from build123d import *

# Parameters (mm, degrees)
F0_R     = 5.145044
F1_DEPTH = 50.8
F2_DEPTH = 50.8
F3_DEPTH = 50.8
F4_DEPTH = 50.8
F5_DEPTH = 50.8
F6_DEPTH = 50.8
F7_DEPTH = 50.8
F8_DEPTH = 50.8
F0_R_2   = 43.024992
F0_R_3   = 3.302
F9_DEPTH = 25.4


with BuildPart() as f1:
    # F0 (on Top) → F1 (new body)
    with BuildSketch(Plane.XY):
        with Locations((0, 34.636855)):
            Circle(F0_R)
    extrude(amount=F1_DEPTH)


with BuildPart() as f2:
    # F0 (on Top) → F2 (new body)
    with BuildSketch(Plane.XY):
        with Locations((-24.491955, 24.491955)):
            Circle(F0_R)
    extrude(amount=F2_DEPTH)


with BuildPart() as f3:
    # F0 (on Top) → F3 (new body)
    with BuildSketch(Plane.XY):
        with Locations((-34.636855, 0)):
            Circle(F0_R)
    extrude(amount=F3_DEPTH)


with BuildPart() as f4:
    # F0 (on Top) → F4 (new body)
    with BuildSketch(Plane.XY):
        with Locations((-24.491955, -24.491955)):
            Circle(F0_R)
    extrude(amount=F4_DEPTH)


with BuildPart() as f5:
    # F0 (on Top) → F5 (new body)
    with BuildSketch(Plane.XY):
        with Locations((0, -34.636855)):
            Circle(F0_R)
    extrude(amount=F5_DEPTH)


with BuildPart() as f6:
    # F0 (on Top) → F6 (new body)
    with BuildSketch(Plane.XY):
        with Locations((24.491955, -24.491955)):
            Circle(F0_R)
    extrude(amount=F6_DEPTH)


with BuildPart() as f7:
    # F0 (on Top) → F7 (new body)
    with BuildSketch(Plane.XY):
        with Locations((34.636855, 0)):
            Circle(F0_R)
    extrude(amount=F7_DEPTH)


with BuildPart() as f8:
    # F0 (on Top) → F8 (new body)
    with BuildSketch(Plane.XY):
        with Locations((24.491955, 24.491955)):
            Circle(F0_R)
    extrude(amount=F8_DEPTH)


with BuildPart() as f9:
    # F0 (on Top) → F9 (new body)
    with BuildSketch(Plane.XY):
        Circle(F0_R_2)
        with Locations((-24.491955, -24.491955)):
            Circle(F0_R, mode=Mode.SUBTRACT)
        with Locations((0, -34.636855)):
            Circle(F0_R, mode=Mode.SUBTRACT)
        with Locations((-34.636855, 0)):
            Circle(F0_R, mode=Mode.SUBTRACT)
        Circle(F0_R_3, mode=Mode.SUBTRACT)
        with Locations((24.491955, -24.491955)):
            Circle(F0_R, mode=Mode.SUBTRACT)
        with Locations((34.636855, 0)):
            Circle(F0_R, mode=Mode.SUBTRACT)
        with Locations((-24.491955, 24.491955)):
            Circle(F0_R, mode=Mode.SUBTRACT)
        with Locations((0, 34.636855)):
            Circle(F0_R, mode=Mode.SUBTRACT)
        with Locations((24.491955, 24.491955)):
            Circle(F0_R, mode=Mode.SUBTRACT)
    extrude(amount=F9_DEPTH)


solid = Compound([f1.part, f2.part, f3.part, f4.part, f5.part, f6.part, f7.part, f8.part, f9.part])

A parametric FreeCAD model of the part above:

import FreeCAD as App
import Part
import Sketcher

V = App.Vector
Q = App.Units.Quantity

doc = App.newDocument("Part")
body = doc.addObject("PartDesign::Body", "Body")

# Sketch on XY plane
sketch1 = body.newObject("Sketcher::SketchObject", "Sketch")
sketch1.AttachmentSupport = (doc.getObject("XY_Plane"), [""])
sketch1.MapMode = "FlatFace"
sketch1.addGeometry(Part.Circle(V(0, 34.636855, 0), V(0, 0, 1), 5.145044), False)
sketch1.addConstraint(Sketcher.Constraint("PointOnObject", 0, 3, -2))
sketch1.addConstraint(Sketcher.Constraint("Diameter", 0, 10.290088))
sketch1.addConstraint(Sketcher.Constraint("DistanceY", -1, 1, 0, 3, 34.636855))
pad1 = body.newObject("PartDesign::Pad", "Pad")
pad1.Profile = sketch1
pad1.Length = Q("2 in")
body2 = doc.addObject("PartDesign::Body", "Body001")

# Sketch on XY plane
sketch2 = body2.newObject("Sketcher::SketchObject", "Sketch001")
sketch2.AttachmentSupport = (doc.getObject("XY_Plane001"), [""])
sketch2.MapMode = "FlatFace"
sketch2.addGeometry(Part.Circle(V(-24.491955, 24.491955, 0), V(0, 0, 1), 5.145044), False)
sketch2.addConstraint(Sketcher.Constraint("Diameter", 0, 10.290088))
sketch2.addConstraint(Sketcher.Constraint("DistanceX", 0, 3, -1, 1, 24.491955))
sketch2.addConstraint(Sketcher.Constraint("DistanceY", -1, 1, 0, 3, 24.491955))
pad2 = body2.newObject("PartDesign::Pad", "Pad001")
pad2.Profile = sketch2
pad2.Length = Q("2 in")
body3 = doc.addObject("PartDesign::Body", "Body002")

# Sketch on XY plane
sketch3 = body3.newObject("Sketcher::SketchObject", "Sketch002")
sketch3.AttachmentSupport = (doc.getObject("XY_Plane002"), [""])
sketch3.MapMode = "FlatFace"
sketch3.addGeometry(Part.Circle(V(-34.636855, 0, 0), V(0, 0, 1), 5.145044), False)
sketch3.addConstraint(Sketcher.Constraint("PointOnObject", 0, 3, -1))
sketch3.addConstraint(Sketcher.Constraint("Diameter", 0, 10.290088))
sketch3.addConstraint(Sketcher.Constraint("DistanceX", 0, 3, -1, 1, 34.636855))
pad3 = body3.newObject("PartDesign::Pad", "Pad002")
pad3.Profile = sketch3
pad3.Length = Q("2 in")
body4 = doc.addObject("PartDesign::Body", "Body003")

# Sketch on XY plane
sketch4 = body4.newObject("Sketcher::SketchObject", "Sketch003")
sketch4.AttachmentSupport = (doc.getObject("XY_Plane003"), [""])
sketch4.MapMode = "FlatFace"
sketch4.addGeometry(Part.Circle(V(-24.491955, -24.491955, 0), V(0, 0, 1), 5.145044), False)
sketch4.addConstraint(Sketcher.Constraint("Diameter", 0, 10.290088))
sketch4.addConstraint(Sketcher.Constraint("DistanceX", 0, 3, -1, 1, 24.491955))
sketch4.addConstraint(Sketcher.Constraint("DistanceY", 0, 3, -1, 1, 24.491955))
pad4 = body4.newObject("PartDesign::Pad", "Pad003")
pad4.Profile = sketch4
pad4.Length = Q("2 in")
body5 = doc.addObject("PartDesign::Body", "Body004")

# Sketch on XY plane
sketch5 = body5.newObject("Sketcher::SketchObject", "Sketch004")
sketch5.AttachmentSupport = (doc.getObject("XY_Plane004"), [""])
sketch5.MapMode = "FlatFace"
sketch5.addGeometry(Part.Circle(V(0, -34.636855, 0), V(0, 0, 1), 5.145044), False)
sketch5.addConstraint(Sketcher.Constraint("PointOnObject", 0, 3, -2))
sketch5.addConstraint(Sketcher.Constraint("Diameter", 0, 10.290088))
sketch5.addConstraint(Sketcher.Constraint("DistanceY", 0, 3, -1, 1, 34.636855))
pad5 = body5.newObject("PartDesign::Pad", "Pad004")
pad5.Profile = sketch5
pad5.Length = Q("2 in")
body6 = doc.addObject("PartDesign::Body", "Body005")

# Sketch on XY plane
sketch6 = body6.newObject("Sketcher::SketchObject", "Sketch005")
sketch6.AttachmentSupport = (doc.getObject("XY_Plane005"), [""])
sketch6.MapMode = "FlatFace"
sketch6.addGeometry(Part.Circle(V(24.491955, -24.491955, 0), V(0, 0, 1), 5.145044), False)
sketch6.addConstraint(Sketcher.Constraint("Diameter", 0, 10.290088))
sketch6.addConstraint(Sketcher.Constraint("DistanceX", -1, 1, 0, 3, 24.491955))
sketch6.addConstraint(Sketcher.Constraint("DistanceY", 0, 3, -1, 1, 24.491955))
pad6 = body6.newObject("PartDesign::Pad", "Pad005")
pad6.Profile = sketch6
pad6.Length = Q("2 in")
body7 = doc.addObject("PartDesign::Body", "Body006")

# Sketch on XY plane
sketch7 = body7.newObject("Sketcher::SketchObject", "Sketch006")
sketch7.AttachmentSupport = (doc.getObject("XY_Plane006"), [""])
sketch7.MapMode = "FlatFace"
sketch7.addGeometry(Part.Circle(V(34.636855, 0, 0), V(0, 0, 1), 5.145044), False)
sketch7.addConstraint(Sketcher.Constraint("PointOnObject", 0, 3, -1))
sketch7.addConstraint(Sketcher.Constraint("Diameter", 0, 10.290088))
sketch7.addConstraint(Sketcher.Constraint("DistanceX", -1, 1, 0, 3, 34.636855))
pad7 = body7.newObject("PartDesign::Pad", "Pad006")
pad7.Profile = sketch7
pad7.Length = Q("2 in")
body8 = doc.addObject("PartDesign::Body", "Body007")

# Sketch on XY plane
sketch8 = body8.newObject("Sketcher::SketchObject", "Sketch007")
sketch8.AttachmentSupport = (doc.getObject("XY_Plane007"), [""])
sketch8.MapMode = "FlatFace"
sketch8.addGeometry(Part.Circle(V(24.491955, 24.491955, 0), V(0, 0, 1), 5.145044), False)
sketch8.addConstraint(Sketcher.Constraint("Diameter", 0, 10.290088))
sketch8.addConstraint(Sketcher.Constraint("DistanceX", -1, 1, 0, 3, 24.491955))
sketch8.addConstraint(Sketcher.Constraint("DistanceY", -1, 1, 0, 3, 24.491955))
pad8 = body8.newObject("PartDesign::Pad", "Pad007")
pad8.Profile = sketch8
pad8.Length = Q("2 in")
body9 = doc.addObject("PartDesign::Body", "Body008")

# Sketch on XY plane
sketch9 = body9.newObject("Sketcher::SketchObject", "Sketch008")
sketch9.AttachmentSupport = (doc.getObject("XY_Plane008"), [""])
sketch9.MapMode = "FlatFace"
sketch9.addGeometry(Part.Circle(V(0, 0, 0), V(0, 0, 1), 43.024992), False)
sketch9.addGeometry(Part.Circle(V(-24.491955, -24.491955, 0), V(0, 0, 1), 5.145044), False)
sketch9.addGeometry(Part.Circle(V(0, -34.636855, 0), V(0, 0, 1), 5.145044), False)
sketch9.addGeometry(Part.Circle(V(24.491955, -24.491955, 0), V(0, 0, 1), 5.145044), False)
sketch9.addGeometry(Part.Circle(V(-34.636855, 0, 0), V(0, 0, 1), 5.145044), False)
sketch9.addGeometry(Part.Circle(V(-24.491955, 24.491955, 0), V(0, 0, 1), 5.145044), False)
sketch9.addGeometry(Part.Circle(V(0, 0, 0), V(0, 0, 1), 3.302), False)
sketch9.addGeometry(Part.Circle(V(34.636855, 0, 0), V(0, 0, 1), 5.145044), False)
sketch9.addGeometry(Part.Circle(V(0, 34.636855, 0), V(0, 0, 1), 5.145044), False)
sketch9.addGeometry(Part.Circle(V(24.491955, 24.491955, 0), V(0, 0, 1), 5.145044), False)
sketch9.addConstraint(Sketcher.Constraint("Coincident", 0, 3, -1, 1))
sketch9.addConstraint(Sketcher.Constraint("Coincident", 6, 3, -1, 1))
sketch9.addConstraint(Sketcher.Constraint("Equal", 1, 2))
sketch9.addConstraint(Sketcher.Constraint("Equal", 2, 3))
sketch9.addConstraint(Sketcher.Constraint("Equal", 3, 4))
sketch9.addConstraint(Sketcher.Constraint("Equal", 4, 5))
sketch9.addConstraint(Sketcher.Constraint("Equal", 5, 7))
sketch9.addConstraint(Sketcher.Constraint("Equal", 7, 8))
sketch9.addConstraint(Sketcher.Constraint("Equal", 8, 9))
sketch9.addConstraint(Sketcher.Constraint("Symmetric", 3, 3, 5, 3, -1, 1))
sketch9.addConstraint(Sketcher.Constraint("Symmetric", 4, 3, 7, 3, -1, 1))
sketch9.addConstraint(Sketcher.Constraint("Symmetric", 2, 3, 8, 3, -1, 1))
sketch9.addConstraint(Sketcher.Constraint("Symmetric", 1, 3, 9, 3, -1, 1))
sketch9.addConstraint(Sketcher.Constraint("Symmetric", 1, 3, 3, 3, -2))
sketch9.addConstraint(Sketcher.Constraint("PointOnObject", 2, 3, -2))
sketch9.addConstraint(Sketcher.Constraint("PointOnObject", 4, 3, -1))
sketch9.addConstraint(Sketcher.Constraint("Diameter", 6, Q("0.26 in")))
sketch9.addConstraint(Sketcher.Constraint("Diameter", 1, 10.290088))
sketch9.addConstraint(Sketcher.Constraint("Diameter", 0, 86.049984))
sketch9.addConstraint(Sketcher.Constraint("DistanceY", 2, 3, 1, 3, 10.1449))
sketch9.addConstraint(Sketcher.Constraint("DistanceX", 4, 3, 1, 3, 10.1449))
sketch9.addConstraint(Sketcher.Constraint("DistanceX", 1, 3, 3, 3, 48.98391))
sketch9.addConstraint(Sketcher.Constraint("DistanceY", 1, 3, 5, 3, 48.98391))
pad9 = body9.newObject("PartDesign::Pad", "Pad008")
pad9.Profile = sketch9
pad9.Length = Q("1 in")

doc.recompute()
